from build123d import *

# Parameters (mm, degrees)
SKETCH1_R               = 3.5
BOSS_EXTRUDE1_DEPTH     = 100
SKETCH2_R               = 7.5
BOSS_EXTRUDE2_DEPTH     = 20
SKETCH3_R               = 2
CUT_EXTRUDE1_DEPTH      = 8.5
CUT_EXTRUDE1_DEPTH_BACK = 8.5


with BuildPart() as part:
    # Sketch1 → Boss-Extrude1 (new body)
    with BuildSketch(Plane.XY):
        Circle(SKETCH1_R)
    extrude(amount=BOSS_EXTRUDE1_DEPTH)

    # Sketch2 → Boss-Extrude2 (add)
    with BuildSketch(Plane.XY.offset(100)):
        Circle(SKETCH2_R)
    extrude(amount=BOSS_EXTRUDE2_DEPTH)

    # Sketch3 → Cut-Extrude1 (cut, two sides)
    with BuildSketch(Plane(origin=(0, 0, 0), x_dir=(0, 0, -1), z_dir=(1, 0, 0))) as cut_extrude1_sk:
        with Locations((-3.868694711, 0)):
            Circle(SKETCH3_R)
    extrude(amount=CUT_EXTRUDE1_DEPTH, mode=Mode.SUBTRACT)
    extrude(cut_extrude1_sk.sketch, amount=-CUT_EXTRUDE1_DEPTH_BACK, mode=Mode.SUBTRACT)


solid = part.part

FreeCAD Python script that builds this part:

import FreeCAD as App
import Part
import Sketcher

V = App.Vector
Q = App.Units.Quantity

doc = App.newDocument("Part")
params = doc.addObject("Spreadsheet::Sheet", "Params")
for row, (alias, value) in enumerate([
    ("sketch1_diameter", "7 mm"),
    ("pad1_length", "100 mm"),
    ("sketch2_diameter", "15 mm"),
    ("pad2_length", "20 mm"),
    ("sketch3_diameter", "4 mm"),
], start=1):
    params.set(f"A{row}", alias)
    params.set(f"B{row}", "=" + value)
    params.setAlias(f"B{row}", alias)

body = doc.addObject("PartDesign::Body", "Body")

# Sketch on XY plane
sketch1 = body.newObject("Sketcher::SketchObject", "Sketch")
sketch1.AttachmentSupport = (doc.getObject("XY_Plane"), [""])
sketch1.MapMode = "FlatFace"
sketch1.addGeometry(Part.Circle(V(0, 0, 0), V(0, 0, 1), 3.5), False)
sketch1.addConstraint([
    Sketcher.Constraint("Coincident", 0, 3, -1, 1),
    Sketcher.Constraint("Diameter", 0, Q("7 mm")),
])
sketch1.setExpression("Constraints[1]", "Params.sketch1_diameter")
pad1 = body.newObject("PartDesign::Pad", "Pad")
pad1.Profile = sketch1
pad1.setExpression("Length", "Params.pad1_length")

# Sketch on XY plane
sketch2 = body.newObject("Sketcher::SketchObject", "Sketch001")
sketch2.AttachmentSupport = (doc.getObject("XY_Plane"), [""])
sketch2.MapMode = "FlatFace"
sketch2.AttachmentOffset = App.Placement(V(0, 0, 100), App.Rotation())
sketch2.addGeometry(Part.Circle(V(0, 0, 0), V(0, 0, 1), 8), False)
sketch2.addConstraint([
    Sketcher.Constraint("Coincident", 0, 3, -1, 1),
    Sketcher.Constraint("Diameter", 0, Q("15 mm")),
])
sketch2.setExpression("Constraints[1]", "Params.sketch2_diameter")
pad2 = body.newObject("PartDesign::Pad", "Pad001")
pad2.Profile = sketch2
pad2.setExpression("Length", "Params.pad2_length")

# Sketch on YZ plane
sketch3 = body.newObject("Sketcher::SketchObject", "Sketch002")
sketch3.AttachmentSupport = (doc.getObject("YZ_Plane"), [""])
sketch3.MapMode = "FlatFace"
sketch3.addGeometry(Part.Circle(V(0, 3.9, 0), V(0, 0, 1), 2), False)
sketch3.addConstraint([
    Sketcher.Constraint("PointOnObject", 0, 3, -2),
    Sketcher.Constraint("Diameter", 0, Q("4 mm")),
    Sketcher.Constraint("DistanceY", -1, 1, 0, 3, Q("3.868695 mm")),
])
sketch3.setExpression("Constraints[1]", "Params.sketch3_diameter")
pocket1 = body.newObject("PartDesign::Pocket", "Pocket")
pocket1.Profile = sketch3
pocket1.Type = "ThroughAll"
pocket1.Midplane = True

doc.recompute()
